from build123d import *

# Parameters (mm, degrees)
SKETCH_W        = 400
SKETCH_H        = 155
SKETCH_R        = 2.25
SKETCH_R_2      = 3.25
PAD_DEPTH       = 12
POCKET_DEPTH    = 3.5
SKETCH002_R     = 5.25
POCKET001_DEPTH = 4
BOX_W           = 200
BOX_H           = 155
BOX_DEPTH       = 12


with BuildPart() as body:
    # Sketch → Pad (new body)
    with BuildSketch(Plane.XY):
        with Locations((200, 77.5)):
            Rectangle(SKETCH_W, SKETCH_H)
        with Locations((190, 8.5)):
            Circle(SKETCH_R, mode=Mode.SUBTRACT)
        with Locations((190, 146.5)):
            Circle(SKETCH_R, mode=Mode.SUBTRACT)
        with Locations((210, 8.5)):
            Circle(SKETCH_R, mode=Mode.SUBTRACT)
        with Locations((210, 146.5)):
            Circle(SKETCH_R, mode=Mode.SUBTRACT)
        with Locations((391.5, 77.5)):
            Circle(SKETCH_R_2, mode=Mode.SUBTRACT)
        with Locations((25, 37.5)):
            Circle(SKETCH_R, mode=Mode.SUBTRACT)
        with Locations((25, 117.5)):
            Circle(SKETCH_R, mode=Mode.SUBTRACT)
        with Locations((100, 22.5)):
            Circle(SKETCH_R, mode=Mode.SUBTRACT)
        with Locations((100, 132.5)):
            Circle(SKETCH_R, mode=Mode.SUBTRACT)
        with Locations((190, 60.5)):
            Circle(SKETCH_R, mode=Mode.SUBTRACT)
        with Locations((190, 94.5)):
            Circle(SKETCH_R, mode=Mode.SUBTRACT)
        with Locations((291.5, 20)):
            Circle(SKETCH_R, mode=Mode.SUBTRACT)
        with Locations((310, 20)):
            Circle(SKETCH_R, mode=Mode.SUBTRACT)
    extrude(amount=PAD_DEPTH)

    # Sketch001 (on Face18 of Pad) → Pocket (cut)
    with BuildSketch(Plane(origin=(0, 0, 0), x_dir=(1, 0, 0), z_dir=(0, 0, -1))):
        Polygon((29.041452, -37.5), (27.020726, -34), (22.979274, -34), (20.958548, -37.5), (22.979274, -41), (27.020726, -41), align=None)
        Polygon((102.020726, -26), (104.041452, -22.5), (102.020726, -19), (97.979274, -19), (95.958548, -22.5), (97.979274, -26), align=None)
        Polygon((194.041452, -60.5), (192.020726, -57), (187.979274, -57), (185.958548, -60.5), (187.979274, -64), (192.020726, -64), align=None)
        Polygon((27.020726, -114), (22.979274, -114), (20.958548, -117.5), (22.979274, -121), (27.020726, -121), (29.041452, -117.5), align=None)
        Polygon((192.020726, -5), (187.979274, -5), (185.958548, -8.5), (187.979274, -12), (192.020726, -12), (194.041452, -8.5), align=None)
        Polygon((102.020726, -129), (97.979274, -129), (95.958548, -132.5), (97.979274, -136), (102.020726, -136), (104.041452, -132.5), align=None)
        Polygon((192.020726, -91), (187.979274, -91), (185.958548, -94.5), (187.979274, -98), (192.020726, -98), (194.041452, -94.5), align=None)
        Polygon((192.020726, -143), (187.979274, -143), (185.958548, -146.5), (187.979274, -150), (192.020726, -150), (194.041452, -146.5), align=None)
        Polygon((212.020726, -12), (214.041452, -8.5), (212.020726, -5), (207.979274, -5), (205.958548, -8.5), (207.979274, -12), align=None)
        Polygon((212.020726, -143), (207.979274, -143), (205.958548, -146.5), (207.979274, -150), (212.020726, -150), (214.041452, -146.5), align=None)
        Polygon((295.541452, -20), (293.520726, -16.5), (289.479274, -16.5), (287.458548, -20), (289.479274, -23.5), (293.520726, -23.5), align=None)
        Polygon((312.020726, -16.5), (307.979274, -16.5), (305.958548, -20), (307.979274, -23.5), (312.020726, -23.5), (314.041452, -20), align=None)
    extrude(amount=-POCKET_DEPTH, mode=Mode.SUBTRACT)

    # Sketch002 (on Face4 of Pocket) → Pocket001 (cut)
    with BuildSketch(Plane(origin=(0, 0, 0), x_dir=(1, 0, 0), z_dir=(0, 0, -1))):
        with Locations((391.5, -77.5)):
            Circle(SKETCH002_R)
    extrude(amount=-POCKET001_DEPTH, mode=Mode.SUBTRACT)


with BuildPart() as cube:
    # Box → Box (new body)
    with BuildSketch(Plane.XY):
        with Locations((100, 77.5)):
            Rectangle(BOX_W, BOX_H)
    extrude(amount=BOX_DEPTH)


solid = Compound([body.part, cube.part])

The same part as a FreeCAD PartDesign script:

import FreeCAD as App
import Part
import Sketcher

V = App.Vector
Q = App.Units.Quantity


def add_polygon(sketch, points):
    """Adds a closed chain of lines whose ends are joined by coincident constraints."""
    first, n = sketch.GeometryCount, len(points)
    for a, b in zip(points, points[1:] + points[:1]):
        sketch.addGeometry(Part.LineSegment(App.Vector(*a, 0), App.Vector(*b, 0)), False)
    for i in range(n):
        sketch.addConstraint(Sketcher.Constraint("Coincident", first + i, 2, first + (i + 1) % n, 1))

doc = App.newDocument("Part")
params = doc.addObject("Spreadsheet::Sheet", "Params")
for row, (alias, value) in enumerate([
    ("sketch1_diameter", "4.5 mm"),
    ("sketch1_diameter2", "6.5 mm"),
    ("sketch1_width", "400 mm"),
    ("sketch1_height", "155 mm"),
    ("pad1_length", "12 mm"),
    ("pocket1_length", "3.5 mm"),
    ("sketch3_diameter", "10.5 mm"),
    ("pocket2_length", "4 mm"),
    ("sketch4_width", "200 mm"),
    ("sketch4_height", "155 mm"),
    ("pad2_length", "12 mm"),
], start=1):
    params.set(f"A{row}", alias)
    params.set(f"B{row}", "=" + value)
    params.setAlias(f"B{row}", alias)

body = doc.addObject("PartDesign::Body", "Body")

sketch1 = body.newObject("Sketcher::SketchObject", "Sketch")
sketch1.AttachmentSupport = (doc.getObject("XY_Plane"), [""])
sketch1.MapMode = "FlatFace"
add_polygon(sketch1, [(0, 155), (0, 0), (400, 0), (400, 155)])
sketch1.addGeometry(Part.Circle(V(100, 22.5, 0), V(0, 0, 1), 2.2), False)
sketch1.addGeometry(Part.Circle(V(25, 37.5, 0), V(0, 0, 1), 2.2), False)
sketch1.addGeometry(Part.Circle(V(190, 8.5, 0), V(0, 0, 1), 2.2), False)
sketch1.addGeometry(Part.Circle(V(190, 60.5, 0), V(0, 0, 1), 2.2), False)
sketch1.addGeometry(Part.Circle(V(210, 8.5, 0), V(0, 0, 1), 2.2), False)
sketch1.addGeometry(Part.Circle(V(291.5, 20, 0), V(0, 0, 1), 2.2), False)
sketch1.addGeometry(Part.Circle(V(310, 20, 0), V(0, 0, 1), 2.2), False)
sketch1.addGeometry(Part.Circle(V(190, 94.5, 0), V(0, 0, 1), 2.2), False)
sketch1.addGeometry(Part.Circle(V(25, 117.5, 0), V(0, 0, 1), 2.2), False)
sketch1.addGeometry(Part.Circle(V(100, 132.5, 0), V(0, 0, 1), 2.2), False)
sketch1.addGeometry(Part.Circle(V(190, 146.5, 0), V(0, 0, 1), 2.2), False)
sketch1.addGeometry(Part.Circle(V(391.5, 77.5, 0), V(0, 0, 1), 3.2), False)
sketch1.addGeometry(Part.Circle(V(210, 146.5, 0), V(0, 0, 1), 2.2), False)
sketch1.addConstraint([
    Sketcher.Constraint("Vertical", 0),
    Sketcher.Constraint("Horizontal", 1),
    Sketcher.Constraint("Vertical", 2),
    Sketcher.Constraint("Horizontal", 3),
    Sketcher.Constraint("Coincident", 0, 2, -1, 1),
    Sketcher.Constraint("Equal", 4, 5),
    Sketcher.Constraint("Equal", 5, 6),
    Sketcher.Constraint("Equal", 6, 7),
    Sketcher.Constraint("Equal", 7, 8),
    Sketcher.Constraint("Equal", 8, 9),
    Sketcher.Constraint("Equal", 9, 10),
    Sketcher.Constraint("Equal", 10, 11),
    Sketcher.Constraint("Equal", 11, 12),
    Sketcher.Constraint("Equal", 12, 13),
    Sketcher.Constraint("Equal", 13, 14),
    Sketcher.Constraint("Equal", 14, 16),
    Sketcher.Constraint("Horizontal", 6, 3, 8, 3),
    Sketcher.Constraint("Horizontal", 9, 3, 10, 3),
    Sketcher.Constraint("Horizontal", 14, 3, 16, 3),
    Sketcher.Constraint("Vertical", 6, 3, 7, 3),
    Sketcher.Constraint("Vertical", 7, 3, 11, 3),
    Sketcher.Constraint("Vertical", 5, 3, 12, 3),
    Sketcher.Constraint("Vertical", 4, 3, 13, 3),
    Sketcher.Constraint("Vertical", 11, 3, 14, 3),
    Sketcher.Constraint("Vertical", 8, 3, 16, 3),
    Sketcher.Constraint("Diameter", 4, Q("4.5 mm")),
    Sketcher.Constraint("Diameter", 15, Q("6.5 mm")),
    Sketcher.Constraint("DistanceX", 1, 1, 1, 2, Q("400 mm")),
    Sketcher.Constraint("DistanceY", 0, 2, 0, 1, Q("155 mm")),
    Sketcher.Constraint("DistanceX", -1, 1, 4, 3, Q("100 mm")),
    Sketcher.Constraint("DistanceX", -1, 1, 5, 3, Q("25 mm")),
    Sketcher.Constraint("DistanceX", -1, 1, 6, 3, Q("190 mm")),
    Sketcher.Constraint("DistanceX", -1, 1, 8, 3, Q("210 mm")),
    Sketcher.Constraint("DistanceY", -1, 1, 9, 3, Q("20 mm")),
    Sketcher.Constraint("DistanceX", -1, 1, 10, 3, Q("310 mm")),
    Sketcher.Constraint("DistanceY", 4, 3, 5, 3, Q("15 mm")),
    Sketcher.Constraint("DistanceY", 6, 3, 4, 3, Q("14 mm")),
    Sketcher.Constraint("DistanceY", 6, 3, 7, 3, Q("52 mm")),
    Sketcher.Constraint("DistanceY", 7, 3, 11, 3, Q("34 mm")),
    Sketcher.Constraint("DistanceY", 5, 3, 12, 3, Q("80 mm")),
    Sketcher.Constraint("DistanceY", 12, 3, 13, 3, Q("15 mm")),
    Sketcher.Constraint("DistanceY", 11, 3, 14, 3, Q("52 mm")),
    Sketcher.Constraint("DistanceX", 9, 3, 15, 3, Q("100 mm")),
    Sketcher.Constraint("DistanceY", 8, 3, 15, 3, Q("69 mm")),
    Sketcher.Constraint("DistanceY", -1, 1, 4, 3, Q("22.5 mm")),
    Sketcher.Constraint("DistanceX", -1, 1, 9, 3, Q("291.5 mm")),
])
sketch1.setExpression("Constraints[29]", "Params.sketch1_diameter")
sketch1.setExpression("Constraints[30]", "Params.sketch1_diameter2")
sketch1.setExpression("Constraints[31]", "Params.sketch1_width")
sketch1.setExpression("Constraints[32]", "Params.sketch1_height")
pad1 = body.newObject("PartDesign::Pad", "Pad")
pad1.Profile = sketch1
pad1.setExpression("Length", "Params.pad1_length")

sketch2 = body.newObject("Sketcher::SketchObject", "Sketch001")
sketch2.AttachmentSupport = (doc.getObject("XY_Plane"), [""])
sketch2.MapMode = "FlatFace"
add_polygon(sketch2, [(29, 37.5), (27, 34), (23, 34), (21, 37.5), (23, 41), (27, 41)])
add_polygon(sketch2, [(102, 26), (104, 22.5), (102, 19), (98, 19), (96, 22.5), (98, 26)])
add_polygon(sketch2, [(194, 60.5), (192, 57), (188, 57), (186, 60.5), (188, 64), (192, 64)])
add_polygon(sketch2, [(27, 114), (23, 114), (21, 117.5), (23, 121), (27, 121), (29, 117.5)])
add_polygon(sketch2, [(192, 5), (188, 5), (186, 8.5), (188, 12), (192, 12), (194, 8.5)])
add_polygon(sketch2, [(102, 129), (98, 129), (96, 132.5), (98, 136), (102, 136), (104, 132.5)])
add_polygon(sketch2, [(192, 91), (188, 91), (186, 94.5), (188, 98), (192, 98), (194, 94.5)])
add_polygon(sketch2, [(192, 143), (188, 143), (186, 146.5), (188, 150), (192, 150), (194, 146.5)])
add_polygon(sketch2, [(212, 12), (214, 8.5), (212, 5), (208, 5), (206, 8.5), (208, 12)])
add_polygon(sketch2, [(212, 143), (208, 143), (206, 146.5), (208, 150), (212, 150), (214, 146.5)])
add_polygon(sketch2, [(295.5, 20), (293.5, 16.5), (289.5, 16.5), (287.5, 20), (289.5, 23.5), (293.5, 23.5)])
add_polygon(sketch2, [(312, 16.5), (308, 16.5), (306, 20), (308, 23.5), (312, 23.5), (314, 20)])
sketch2.addConstraint([
    Sketcher.Constraint("Horizontal", 1),
    Sketcher.Constraint("Horizontal", 4),
    Sketcher.Constraint("Horizontal", 8),
    Sketcher.Constraint("Horizontal", 11),
    Sketcher.Constraint("Horizontal", 13),
    Sketcher.Constraint("Horizontal", 16),
    Sketcher.Constraint("Horizontal", 18),
    Sketcher.Constraint("Horizontal", 21),
    Sketcher.Constraint("Horizontal", 24),
    Sketcher.Constraint("Horizontal", 27),
    Sketcher.Constraint("Horizontal", 30),
    Sketcher.Constraint("Horizontal", 33),
    Sketcher.Constraint("Horizontal", 36),
    Sketcher.Constraint("Horizontal", 39),
    Sketcher.Constraint("Horizontal", 42),
    Sketcher.Constraint("Horizontal", 45),
    Sketcher.Constraint("Horizontal", 50),
    Sketcher.Constraint("Horizontal", 53),
    Sketcher.Constraint("Horizontal", 54),
    Sketcher.Constraint("Horizontal", 57),
    Sketcher.Constraint("Horizontal", 61),
    Sketcher.Constraint("Horizontal", 64),
    Sketcher.Constraint("Horizontal", 66),
    Sketcher.Constraint("Horizontal", 69),
    Sketcher.Constraint("Parallel", 0, 3),
    Sketcher.Constraint("Parallel", 2, 5),
    Sketcher.Constraint("Parallel", 5, 6),
    Sketcher.Constraint("Parallel", 3, 7),
    Sketcher.Constraint("Parallel", 6, 9),
    Sketcher.Constraint("Parallel", 7, 10),
    Sketcher.Constraint("Parallel", 10, 12),
    Sketcher.Constraint("Parallel", 9, 14),
    Sketcher.Constraint("Parallel", 12, 15),
    Sketcher.Constraint("Parallel", 14, 17),
    Sketcher.Constraint("Parallel", 17, 19),
    Sketcher.Constraint("Parallel", 15, 20),
    Sketcher.Constraint("Parallel", 19, 22),
    Sketcher.Constraint("Parallel", 20, 23),
    Sketcher.Constraint("Parallel", 22, 25),
    Sketcher.Constraint("Parallel", 23, 26),
    Sketcher.Constraint("Parallel", 25, 28),
    Sketcher.Constraint("Parallel", 26, 29),
    Sketcher.Constraint("Parallel", 28, 31),
    Sketcher.Constraint("Parallel", 29, 32),
    Sketcher.Constraint("Parallel", 31, 34),
    Sketcher.Constraint("Parallel", 32, 35),
    Sketcher.Constraint("Parallel", 34, 37),
    Sketcher.Constraint("Parallel", 35, 38),
    Sketcher.Constraint("Parallel", 37, 40),
    Sketcher.Constraint("Parallel", 38, 41),
    Sketcher.Constraint("Parallel", 40, 43),
    Sketcher.Constraint("Parallel", 41, 44),
    Sketcher.Constraint("Parallel", 43, 46),
    Sketcher.Constraint("Parallel", 44, 47),
    Sketcher.Constraint("Parallel", 46, 48),
    Sketcher.Constraint("Parallel", 47, 49),
    Sketcher.Constraint("Parallel", 48, 51),
    Sketcher.Constraint("Parallel", 49, 52),
    Sketcher.Constraint("Parallel", 51, 55),
    Sketcher.Constraint("Parallel", 52, 56),
    Sketcher.Constraint("Parallel", 55, 58),
    Sketcher.Constraint("Parallel", 56, 59),
    Sketcher.Constraint("Parallel", 59, 60),
    Sketcher.Constraint("Parallel", 58, 62),
    Sketcher.Constraint("Parallel", 60, 63),
    Sketcher.Constraint("Parallel", 62, 65),
    Sketcher.Constraint("Parallel", 65, 67),
    Sketcher.Constraint("Parallel", 63, 68),
    Sketcher.Constraint("Parallel", 67, 70),
    Sketcher.Constraint("Parallel", 68, 71),
    Sketcher.Constraint("Horizontal", 2, 2, 5, 2),
    Sketcher.Constraint("Horizontal", 6, 2, 9, 2),
    Sketcher.Constraint("Horizontal", 14, 2, 17, 2),
    Sketcher.Constraint("Horizontal", 19, 2, 22, 2),
    Sketcher.Constraint("Horizontal", 25, 2, 28, 2),
    Sketcher.Constraint("Horizontal", 31, 2, 34, 2),
    Sketcher.Constraint("Horizontal", 37, 2, 40, 2),
    Sketcher.Constraint("Horizontal", 43, 2, 46, 2),
    Sketcher.Constraint("Horizontal", 28, 2, 48, 2),
    Sketcher.Constraint("Horizontal", 29, 2, 49, 2),
    Sketcher.Constraint("Horizontal", 48, 2, 51, 2),
    Sketcher.Constraint("Horizontal", 27, 2, 52, 2),
    Sketcher.Constraint("Horizontal", 47, 2, 54, 2),
    Sketcher.Constraint("Horizontal", 46, 2, 55, 2),
    Sketcher.Constraint("Horizontal", 45, 2, 56, 2),
    Sketcher.Constraint("Horizontal", 55, 2, 58, 2),
    Sketcher.Constraint("Horizontal", 62, 2, 65, 2),
    Sketcher.Constraint("Horizontal", 61, 2, 66, 2),
    Sketcher.Constraint("Horizontal", 65, 2, 67, 2),
    Sketcher.Constraint("Horizontal", 64, 2, 68, 2),
    Sketcher.Constraint("Horizontal", 67, 2, 70, 2),
    Sketcher.Constraint("Vertical", 1, 2, 3, 2),
    Sketcher.Constraint("Vertical", 0, 2, 4, 2),
    Sketcher.Constraint("Vertical", 8, 2, 10, 2),
    Sketcher.Constraint("Vertical", 13, 2, 15, 2),
    Sketcher.Constraint("Vertical", 3, 2, 18, 2),
    Sketcher.Constraint("Vertical", 2, 2, 19, 2),
    Sketcher.Constraint("Vertical", 18, 2, 20, 2),
    Sketcher.Constraint("Vertical", 4, 2, 21, 2),
    Sketcher.Constraint("Vertical", 15, 2, 24, 2),
    Sketcher.Constraint("Vertical", 14, 2, 25, 2),
    Sketcher.Constraint("Vertical", 24, 2, 26, 2),
    Sketcher.Constraint("Vertical", 16, 2, 27, 2),
    Sketcher.Constraint("Vertical", 10, 2, 30, 2),
    Sketcher.Constraint("Vertical", 9, 2, 31, 2),
    Sketcher.Constraint("Vertical", 30, 2, 32, 2),
    Sketcher.Constraint("Vertical", 11, 2, 33, 2),
    Sketcher.Constraint("Vertical", 26, 2, 36, 2),
    Sketcher.Constraint("Vertical", 25, 2, 37, 2),
    Sketcher.Constraint("Vertical", 36, 2, 38, 2),
    Sketcher.Constraint("Vertical", 29, 2, 39, 2),
    Sketcher.Constraint("Vertical", 38, 2, 42, 2),
    Sketcher.Constraint("Vertical", 37, 2, 43, 2),
    Sketcher.Constraint("Vertical", 42, 2, 44, 2),
    Sketcher.Constraint("Vertical", 41, 2, 45, 2),
    Sketcher.Constraint("Vertical", 52, 2, 54, 2),
    Sketcher.Constraint("Vertical", 53, 2, 57, 2),
    Sketcher.Constraint("Vertical", 61, 2, 63, 2),
    Sketcher.Constraint("Equal", 4, 8),
    Sketcher.Constraint("Equal", 11, 13),
    Sketcher.Constraint("Equal", 45, 50),
    Sketcher.Constraint("Equal", 57, 61),
    Sketcher.Constraint("Equal", 64, 66),
    Sketcher.Constraint("Equal", 5, 6),
    Sketcher.Constraint("Equal", 10, 12),
    Sketcher.Constraint("Equal", 59, 60),
    Sketcher.Constraint("Angle", 0, Q("-120.000001 deg")),
    Sketcher.Constraint("DistanceY", -1, 1, 0, 2, Q("34 mm")),
    Sketcher.Constraint("DistanceY", -1, 1, 3, 2, Q("41 mm")),
    Sketcher.Constraint("DistanceY", -1, 1, 7, 2, Q("19 mm")),
    Sketcher.Constraint("DistanceY", -1, 1, 12, 2, Q("57 mm")),
    Sketcher.Constraint("DistanceY", -1, 1, 18, 2, Q("114 mm")),
    Sketcher.Constraint("DistanceY", -1, 1, 24, 2, Q("5 mm")),
    Sketcher.Constraint("DistanceY", -1, 1, 30, 2, Q("129 mm")),
    Sketcher.Constraint("DistanceY", -1, 1, 36, 2, Q("91 mm")),
    Sketcher.Constraint("DistanceY", -1, 1, 42, 2, Q("143 mm")),
    Sketcher.Constraint("DistanceY", -1, 1, 62, 2, Q("20 mm")),
    Sketcher.Constraint("DistanceX", 1, 2, 1, 1, Q("4.041452 mm")),
    Sketcher.Constraint("DistanceX", -1, 1, 2, 2, Q("20.958548 mm")),
    Sketcher.Constraint("DistanceX", -1, 1, 14, 2, Q("185.958548 mm")),
    Sketcher.Constraint("DistanceX", -1, 1, 48, 2, Q("214.041452 mm")),
    Sketcher.Constraint("DistanceX", -1, 1, 62, 2, Q("287.458548 mm")),
    Sketcher.Constraint("DistanceX", -1, 1, 67, 2, Q("305.958548 mm")),
    Sketcher.Constraint("DistanceX", -1, 1, 6, 2, Q("104.041452 mm")),
])
pocket1 = body.newObject("PartDesign::Pocket", "Pocket")
pocket1.Profile = sketch2
pocket1.setExpression("Length", "Params.pocket1_length")
pocket1.Reversed = True

sketch3 = body.newObject("Sketcher::SketchObject", "Sketch002")
sketch3.AttachmentSupport = (doc.getObject("XY_Plane"), [""])
sketch3.MapMode = "FlatFace"
sketch3.addGeometry(Part.Circle(V(392, 78, 0), V(0, 0, 1), 5), False)
sketch3.addConstraint([
    Sketcher.Constraint("Diameter", 0, Q("10.5 mm")),
    Sketcher.Constraint("DistanceX", -1, 1, 0, 3, Q("391.5 mm")),
    Sketcher.Constraint("DistanceY", -1, 1, 0, 3, Q("77.5 mm")),
])
sketch3.setExpression("Constraints[0]", "Params.sketch3_diameter")
pocket2 = body.newObject("PartDesign::Pocket", "Pocket001")
pocket2.Profile = sketch3
pocket2.setExpression("Length", "Params.pocket2_length")
pocket2.Reversed = True
body2 = doc.addObject("PartDesign::Body", "Body001")

sketch4 = body2.newObject("Sketcher::SketchObject", "Sketch003")
sketch4.AttachmentSupport = (doc.getObject("XY_Plane001"), [""])
sketch4.MapMode = "FlatFace"
add_polygon(sketch4, [(0, 155), (0, 0), (200, 0), (200, 155)])
sketch4.addConstraint([
    Sketcher.Constraint("Vertical", 0),
    Sketcher.Constraint("Horizontal", 1),
    Sketcher.Constraint("Vertical", 2),
    Sketcher.Constraint("Horizontal", 3),
    Sketcher.Constraint("Coincident", 0, 2, -1, 1),
    Sketcher.Constraint("DistanceX", 1, 1, 1, 2, Q("200 mm")),
    Sketcher.Constraint("DistanceY", 0, 2, 0, 1, Q("155 mm")),
])
sketch4.setExpression("Constraints[9]", "Params.sketch4_width")
sketch4.setExpression("Constraints[10]", "Params.sketch4_height")
pad2 = body2.newObject("PartDesign::Pad", "Pad001")
pad2.Profile = sketch4
pad2.setExpression("Length", "Params.pad2_length")

doc.recompute()
